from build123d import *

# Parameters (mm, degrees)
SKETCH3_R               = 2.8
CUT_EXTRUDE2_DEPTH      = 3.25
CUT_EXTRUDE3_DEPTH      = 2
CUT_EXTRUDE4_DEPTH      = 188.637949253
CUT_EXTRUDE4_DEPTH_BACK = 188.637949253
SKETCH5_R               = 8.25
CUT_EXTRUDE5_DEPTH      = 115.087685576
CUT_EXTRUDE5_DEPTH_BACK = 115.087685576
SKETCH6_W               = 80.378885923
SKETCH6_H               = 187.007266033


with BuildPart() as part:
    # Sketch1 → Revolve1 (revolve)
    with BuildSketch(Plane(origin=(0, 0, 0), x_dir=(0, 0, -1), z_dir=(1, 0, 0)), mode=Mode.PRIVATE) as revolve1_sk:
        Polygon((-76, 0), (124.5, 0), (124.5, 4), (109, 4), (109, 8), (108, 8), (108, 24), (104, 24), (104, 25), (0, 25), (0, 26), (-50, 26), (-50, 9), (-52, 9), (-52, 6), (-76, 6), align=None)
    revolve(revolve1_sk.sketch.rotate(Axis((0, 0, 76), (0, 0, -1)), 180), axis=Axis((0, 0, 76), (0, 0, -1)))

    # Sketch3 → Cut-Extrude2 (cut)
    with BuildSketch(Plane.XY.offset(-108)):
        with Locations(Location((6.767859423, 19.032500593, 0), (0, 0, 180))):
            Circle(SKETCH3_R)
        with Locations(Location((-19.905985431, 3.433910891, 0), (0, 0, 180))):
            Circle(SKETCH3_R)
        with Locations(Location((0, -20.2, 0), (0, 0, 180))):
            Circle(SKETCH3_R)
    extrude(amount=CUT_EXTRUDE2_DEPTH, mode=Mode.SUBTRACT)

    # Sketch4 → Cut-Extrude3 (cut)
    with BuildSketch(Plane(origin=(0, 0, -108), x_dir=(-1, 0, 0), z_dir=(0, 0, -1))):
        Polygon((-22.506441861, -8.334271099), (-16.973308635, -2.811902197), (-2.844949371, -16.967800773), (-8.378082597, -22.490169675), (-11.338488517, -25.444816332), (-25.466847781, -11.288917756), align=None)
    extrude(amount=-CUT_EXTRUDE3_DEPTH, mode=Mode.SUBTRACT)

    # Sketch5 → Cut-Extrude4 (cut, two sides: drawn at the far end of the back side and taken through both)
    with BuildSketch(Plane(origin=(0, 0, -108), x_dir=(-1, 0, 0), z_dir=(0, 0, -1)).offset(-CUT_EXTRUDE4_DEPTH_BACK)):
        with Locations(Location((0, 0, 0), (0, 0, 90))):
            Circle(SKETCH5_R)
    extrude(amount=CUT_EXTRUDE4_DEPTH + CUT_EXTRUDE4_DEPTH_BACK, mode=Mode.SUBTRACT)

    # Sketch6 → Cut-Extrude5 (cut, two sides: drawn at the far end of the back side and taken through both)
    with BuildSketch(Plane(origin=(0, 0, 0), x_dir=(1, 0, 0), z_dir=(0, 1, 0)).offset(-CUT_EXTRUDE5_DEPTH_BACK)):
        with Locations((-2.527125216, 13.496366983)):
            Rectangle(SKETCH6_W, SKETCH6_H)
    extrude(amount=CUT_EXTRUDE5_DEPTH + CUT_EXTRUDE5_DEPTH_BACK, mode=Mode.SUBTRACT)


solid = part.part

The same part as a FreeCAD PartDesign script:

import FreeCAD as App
import Part
import Sketcher

V = App.Vector


def add_polygon(sketch, points):
    """Adds a closed chain of lines whose ends are joined by coincident constraints."""
    first, n = sketch.GeometryCount, len(points)
    for a, b in zip(points, points[1:] + points[:1]):
        sketch.addGeometry(Part.LineSegment(App.Vector(*a, 0), App.Vector(*b, 0)), False)
    for i in range(n):
        sketch.addConstraint(Sketcher.Constraint("Coincident", first + i, 2, first + (i + 1) % n, 1))

doc = App.newDocument("Part")
body = doc.addObject("PartDesign::Body", "Body")

sketch1 = body.newObject("Sketcher::SketchObject", "Sketch")
sketch1.AttachmentSupport = (doc.getObject("YZ_Plane"), [""])
sketch1.MapMode = "FlatFace"
add_polygon(sketch1, [(0, 76), (0, -124.5), (4, -124.5), (4, -109), (8, -109), (8, -108), (24, -108), (24, -104), (25, -104), (25, 0), (26, 0), (26, 50), (9, 50), (9, 52), (6, 52), (6, 76)])
sketch1.addConstraint([
    Sketcher.Constraint("Vertical", 0),
    Sketcher.Constraint("Horizontal", 1),
    Sketcher.Constraint("Vertical", 2),
    Sketcher.Constraint("Horizontal", 3),
    Sketcher.Constraint("Vertical", 4),
    Sketcher.Constraint("Horizontal", 5),
    Sketcher.Constraint("Vertical", 6),
    Sketcher.Constraint("Horizontal", 7),
    Sketcher.Constraint("Vertical", 8),
    Sketcher.Constraint("Horizontal", 9),
    Sketcher.Constraint("Vertical", 10),
    Sketcher.Constraint("Horizontal", 11),
    Sketcher.Constraint("Vertical", 12),
    Sketcher.Constraint("Horizontal", 13),
    Sketcher.Constraint("Vertical", 14),
    Sketcher.Constraint("Horizontal", 15),
    Sketcher.Constraint("PointOnObject", 0, 2, -2),
    Sketcher.Constraint("PointOnObject", 8, 2, -1),
    Sketcher.Constraint("Equal", 1, 3),
    Sketcher.Constraint("Equal", 7, 9),
    Sketcher.Constraint("Equal", 9, 4),
    Sketcher.Constraint("Equal", 3, 6),
    Sketcher.Constraint("DistanceX", 1, 1, 1, 2, 4.0),
    Sketcher.Constraint("DistanceX", 5, 1, 5, 2, 16.0),
    Sketcher.Constraint("DistanceX", 7, 1, 7, 2, 1.0),
    Sketcher.Constraint("DistanceX", 11, 2, 11, 1, 17.0),
    Sketcher.Constraint("DistanceX", 13, 2, 13, 1, 3.0),
    Sketcher.Constraint("DistanceY", 8, 1, 8, 2, 104.0),
    Sketcher.Constraint("DistanceY", 10, 1, 10, 2, 50.0),
    Sketcher.Constraint("DistanceY", 12, 1, 12, 2, 2.0),
    Sketcher.Constraint("DistanceY", 14, 1, 14, 2, 24.0),
    Sketcher.Constraint("DistanceY", 0, 2, 0, 1, 200.5),
])
revolution = body.newObject("PartDesign::Revolution", "Revolution")
revolution.Profile = sketch1
revolution.ReferenceAxis = (sketch1, ["V_Axis"])
revolution.Angle = 360

sketch2 = body.newObject("Sketcher::SketchObject", "Sketch001")
sketch2.AttachmentSupport = (doc.getObject("XY_Plane"), [""])
sketch2.MapMode = "FlatFace"
sketch2.AttachmentOffset = App.Placement(V(0, 0, -108), App.Rotation())
sketch2.addGeometry([
    Part.Circle(V(6.767859, 19.032501, 0), V(0, 0, 1), 2.8),
    Part.Circle(V(-19.905985, 3.433911, 0), V(0, 0, 1), 2.8),
    Part.Circle(V(0, -20.2, 0), V(0, 0, 1), 2.8),
], False)
sketch2.addConstraint([
    Sketcher.Constraint("Equal", 0, 1),
    Sketcher.Constraint("Equal", 1, 2),
    Sketcher.Constraint("PointOnObject", 2, 3, -2),
    Sketcher.Constraint("Diameter", 0, 5.6),
    Sketcher.Constraint("DistanceY", 2, 3, -1, 1, 20.2),
    Sketcher.Constraint("DistanceY", -1, 1, 0, 3, 19.032501),
    Sketcher.Constraint("DistanceX", -1, 1, 0, 3, 6.767859),
    Sketcher.Constraint("DistanceY", -1, 1, 1, 3, 3.433911),
    Sketcher.Constraint("DistanceX", 1, 3, -1, 1, 19.905985),
])
pocket1 = body.newObject("PartDesign::Pocket", "Pocket")
pocket1.Profile = sketch2
pocket1.Length = 3.25
pocket1.Reversed = True

sketch3 = body.newObject("Sketcher::SketchObject", "Sketch002")
sketch3.AttachmentSupport = (doc.getObject("XY_Plane"), [""])
sketch3.MapMode = "FlatFace"
sketch3.AttachmentOffset = App.Placement(V(0, 0, -108), App.Rotation())
add_polygon(sketch3, [(16.973309, -2.811902), (22.506442, -8.334271), (25.466848, -11.288918), (11.338489, -25.444816), (8.378083, -22.49017), (2.844949, -16.967801)])
sketch3.addConstraint([
    Sketcher.Constraint("Parallel", 0, 1),
    Sketcher.Constraint("Perpendicular", 1, 2),
    Sketcher.Constraint("Perpendicular", 2, 3),
    Sketcher.Constraint("Parallel", 3, 4),
    Sketcher.Constraint("Perpendicular", 4, 5),
    Sketcher.Constraint("Equal", 1, 3),
    Sketcher.Constraint("Distance", 2, 20.0),
    Sketcher.Constraint("DistanceY", 4, 2, -1, 1, 16.967801),
    Sketcher.Constraint("DistanceY", 2, 2, 1, 2, 14.155899),
    Sketcher.Constraint("DistanceX", 4, 2, 1, 2, 22.621898),
    Sketcher.Constraint("DistanceX", -1, 1, 0, 2, 22.506442),
    Sketcher.Constraint("DistanceY", 0, 2, -1, 1, 8.334271),
])
pocket2 = body.newObject("PartDesign::Pocket", "Pocket001")
pocket2.Profile = sketch3
pocket2.Length = 2
pocket2.Reversed = True

sketch4 = body.newObject("Sketcher::SketchObject", "Sketch003")
sketch4.AttachmentSupport = (doc.getObject("XY_Plane"), [""])
sketch4.MapMode = "FlatFace"
sketch4.AttachmentOffset = App.Placement(V(0, 0, -108), App.Rotation())
sketch4.addGeometry(Part.Circle(V(0, 0, 0), V(0, 0, 1), 8.25), False)
sketch4.addConstraint([
    Sketcher.Constraint("Coincident", 0, 3, -1, 1),
    Sketcher.Constraint("Diameter", 0, 16.5),
])
pocket3 = body.newObject("PartDesign::Pocket", "Pocket002")
pocket3.Profile = sketch4
pocket3.Type = "ThroughAll"
pocket3.Midplane = True

sketch5 = body.newObject("Sketcher::SketchObject", "Sketch004")
sketch5.AttachmentSupport = (doc.getObject("XZ_Plane"), [""])
sketch5.MapMode = "FlatFace"
add_polygon(sketch5, [(-42.716568, -107), (-42.716568, 80.007266), (37.662318, 80.007266), (37.662318, -107)])
sketch5.addConstraint([
    Sketcher.Constraint("Vertical", 0),
    Sketcher.Constraint("Horizontal", 1),
    Sketcher.Constraint("Vertical", 2),
    Sketcher.Constraint("Horizontal", 3),
    Sketcher.Constraint("DistanceY", 2, 2, -1, 1, 107.0),
    Sketcher.Constraint("DistanceX", 1, 1, 1, 2, 80.378886),
    Sketcher.Constraint("DistanceY", 0, 1, 0, 2, 187.007266),
    Sketcher.Constraint("DistanceX", 0, 2, -1, 1, 42.716568),
])
pocket4 = body.newObject("PartDesign::Pocket", "Pocket003")
pocket4.Profile = sketch5
pocket4.Type = "ThroughAll"
pocket4.Midplane = True

doc.recompute()
